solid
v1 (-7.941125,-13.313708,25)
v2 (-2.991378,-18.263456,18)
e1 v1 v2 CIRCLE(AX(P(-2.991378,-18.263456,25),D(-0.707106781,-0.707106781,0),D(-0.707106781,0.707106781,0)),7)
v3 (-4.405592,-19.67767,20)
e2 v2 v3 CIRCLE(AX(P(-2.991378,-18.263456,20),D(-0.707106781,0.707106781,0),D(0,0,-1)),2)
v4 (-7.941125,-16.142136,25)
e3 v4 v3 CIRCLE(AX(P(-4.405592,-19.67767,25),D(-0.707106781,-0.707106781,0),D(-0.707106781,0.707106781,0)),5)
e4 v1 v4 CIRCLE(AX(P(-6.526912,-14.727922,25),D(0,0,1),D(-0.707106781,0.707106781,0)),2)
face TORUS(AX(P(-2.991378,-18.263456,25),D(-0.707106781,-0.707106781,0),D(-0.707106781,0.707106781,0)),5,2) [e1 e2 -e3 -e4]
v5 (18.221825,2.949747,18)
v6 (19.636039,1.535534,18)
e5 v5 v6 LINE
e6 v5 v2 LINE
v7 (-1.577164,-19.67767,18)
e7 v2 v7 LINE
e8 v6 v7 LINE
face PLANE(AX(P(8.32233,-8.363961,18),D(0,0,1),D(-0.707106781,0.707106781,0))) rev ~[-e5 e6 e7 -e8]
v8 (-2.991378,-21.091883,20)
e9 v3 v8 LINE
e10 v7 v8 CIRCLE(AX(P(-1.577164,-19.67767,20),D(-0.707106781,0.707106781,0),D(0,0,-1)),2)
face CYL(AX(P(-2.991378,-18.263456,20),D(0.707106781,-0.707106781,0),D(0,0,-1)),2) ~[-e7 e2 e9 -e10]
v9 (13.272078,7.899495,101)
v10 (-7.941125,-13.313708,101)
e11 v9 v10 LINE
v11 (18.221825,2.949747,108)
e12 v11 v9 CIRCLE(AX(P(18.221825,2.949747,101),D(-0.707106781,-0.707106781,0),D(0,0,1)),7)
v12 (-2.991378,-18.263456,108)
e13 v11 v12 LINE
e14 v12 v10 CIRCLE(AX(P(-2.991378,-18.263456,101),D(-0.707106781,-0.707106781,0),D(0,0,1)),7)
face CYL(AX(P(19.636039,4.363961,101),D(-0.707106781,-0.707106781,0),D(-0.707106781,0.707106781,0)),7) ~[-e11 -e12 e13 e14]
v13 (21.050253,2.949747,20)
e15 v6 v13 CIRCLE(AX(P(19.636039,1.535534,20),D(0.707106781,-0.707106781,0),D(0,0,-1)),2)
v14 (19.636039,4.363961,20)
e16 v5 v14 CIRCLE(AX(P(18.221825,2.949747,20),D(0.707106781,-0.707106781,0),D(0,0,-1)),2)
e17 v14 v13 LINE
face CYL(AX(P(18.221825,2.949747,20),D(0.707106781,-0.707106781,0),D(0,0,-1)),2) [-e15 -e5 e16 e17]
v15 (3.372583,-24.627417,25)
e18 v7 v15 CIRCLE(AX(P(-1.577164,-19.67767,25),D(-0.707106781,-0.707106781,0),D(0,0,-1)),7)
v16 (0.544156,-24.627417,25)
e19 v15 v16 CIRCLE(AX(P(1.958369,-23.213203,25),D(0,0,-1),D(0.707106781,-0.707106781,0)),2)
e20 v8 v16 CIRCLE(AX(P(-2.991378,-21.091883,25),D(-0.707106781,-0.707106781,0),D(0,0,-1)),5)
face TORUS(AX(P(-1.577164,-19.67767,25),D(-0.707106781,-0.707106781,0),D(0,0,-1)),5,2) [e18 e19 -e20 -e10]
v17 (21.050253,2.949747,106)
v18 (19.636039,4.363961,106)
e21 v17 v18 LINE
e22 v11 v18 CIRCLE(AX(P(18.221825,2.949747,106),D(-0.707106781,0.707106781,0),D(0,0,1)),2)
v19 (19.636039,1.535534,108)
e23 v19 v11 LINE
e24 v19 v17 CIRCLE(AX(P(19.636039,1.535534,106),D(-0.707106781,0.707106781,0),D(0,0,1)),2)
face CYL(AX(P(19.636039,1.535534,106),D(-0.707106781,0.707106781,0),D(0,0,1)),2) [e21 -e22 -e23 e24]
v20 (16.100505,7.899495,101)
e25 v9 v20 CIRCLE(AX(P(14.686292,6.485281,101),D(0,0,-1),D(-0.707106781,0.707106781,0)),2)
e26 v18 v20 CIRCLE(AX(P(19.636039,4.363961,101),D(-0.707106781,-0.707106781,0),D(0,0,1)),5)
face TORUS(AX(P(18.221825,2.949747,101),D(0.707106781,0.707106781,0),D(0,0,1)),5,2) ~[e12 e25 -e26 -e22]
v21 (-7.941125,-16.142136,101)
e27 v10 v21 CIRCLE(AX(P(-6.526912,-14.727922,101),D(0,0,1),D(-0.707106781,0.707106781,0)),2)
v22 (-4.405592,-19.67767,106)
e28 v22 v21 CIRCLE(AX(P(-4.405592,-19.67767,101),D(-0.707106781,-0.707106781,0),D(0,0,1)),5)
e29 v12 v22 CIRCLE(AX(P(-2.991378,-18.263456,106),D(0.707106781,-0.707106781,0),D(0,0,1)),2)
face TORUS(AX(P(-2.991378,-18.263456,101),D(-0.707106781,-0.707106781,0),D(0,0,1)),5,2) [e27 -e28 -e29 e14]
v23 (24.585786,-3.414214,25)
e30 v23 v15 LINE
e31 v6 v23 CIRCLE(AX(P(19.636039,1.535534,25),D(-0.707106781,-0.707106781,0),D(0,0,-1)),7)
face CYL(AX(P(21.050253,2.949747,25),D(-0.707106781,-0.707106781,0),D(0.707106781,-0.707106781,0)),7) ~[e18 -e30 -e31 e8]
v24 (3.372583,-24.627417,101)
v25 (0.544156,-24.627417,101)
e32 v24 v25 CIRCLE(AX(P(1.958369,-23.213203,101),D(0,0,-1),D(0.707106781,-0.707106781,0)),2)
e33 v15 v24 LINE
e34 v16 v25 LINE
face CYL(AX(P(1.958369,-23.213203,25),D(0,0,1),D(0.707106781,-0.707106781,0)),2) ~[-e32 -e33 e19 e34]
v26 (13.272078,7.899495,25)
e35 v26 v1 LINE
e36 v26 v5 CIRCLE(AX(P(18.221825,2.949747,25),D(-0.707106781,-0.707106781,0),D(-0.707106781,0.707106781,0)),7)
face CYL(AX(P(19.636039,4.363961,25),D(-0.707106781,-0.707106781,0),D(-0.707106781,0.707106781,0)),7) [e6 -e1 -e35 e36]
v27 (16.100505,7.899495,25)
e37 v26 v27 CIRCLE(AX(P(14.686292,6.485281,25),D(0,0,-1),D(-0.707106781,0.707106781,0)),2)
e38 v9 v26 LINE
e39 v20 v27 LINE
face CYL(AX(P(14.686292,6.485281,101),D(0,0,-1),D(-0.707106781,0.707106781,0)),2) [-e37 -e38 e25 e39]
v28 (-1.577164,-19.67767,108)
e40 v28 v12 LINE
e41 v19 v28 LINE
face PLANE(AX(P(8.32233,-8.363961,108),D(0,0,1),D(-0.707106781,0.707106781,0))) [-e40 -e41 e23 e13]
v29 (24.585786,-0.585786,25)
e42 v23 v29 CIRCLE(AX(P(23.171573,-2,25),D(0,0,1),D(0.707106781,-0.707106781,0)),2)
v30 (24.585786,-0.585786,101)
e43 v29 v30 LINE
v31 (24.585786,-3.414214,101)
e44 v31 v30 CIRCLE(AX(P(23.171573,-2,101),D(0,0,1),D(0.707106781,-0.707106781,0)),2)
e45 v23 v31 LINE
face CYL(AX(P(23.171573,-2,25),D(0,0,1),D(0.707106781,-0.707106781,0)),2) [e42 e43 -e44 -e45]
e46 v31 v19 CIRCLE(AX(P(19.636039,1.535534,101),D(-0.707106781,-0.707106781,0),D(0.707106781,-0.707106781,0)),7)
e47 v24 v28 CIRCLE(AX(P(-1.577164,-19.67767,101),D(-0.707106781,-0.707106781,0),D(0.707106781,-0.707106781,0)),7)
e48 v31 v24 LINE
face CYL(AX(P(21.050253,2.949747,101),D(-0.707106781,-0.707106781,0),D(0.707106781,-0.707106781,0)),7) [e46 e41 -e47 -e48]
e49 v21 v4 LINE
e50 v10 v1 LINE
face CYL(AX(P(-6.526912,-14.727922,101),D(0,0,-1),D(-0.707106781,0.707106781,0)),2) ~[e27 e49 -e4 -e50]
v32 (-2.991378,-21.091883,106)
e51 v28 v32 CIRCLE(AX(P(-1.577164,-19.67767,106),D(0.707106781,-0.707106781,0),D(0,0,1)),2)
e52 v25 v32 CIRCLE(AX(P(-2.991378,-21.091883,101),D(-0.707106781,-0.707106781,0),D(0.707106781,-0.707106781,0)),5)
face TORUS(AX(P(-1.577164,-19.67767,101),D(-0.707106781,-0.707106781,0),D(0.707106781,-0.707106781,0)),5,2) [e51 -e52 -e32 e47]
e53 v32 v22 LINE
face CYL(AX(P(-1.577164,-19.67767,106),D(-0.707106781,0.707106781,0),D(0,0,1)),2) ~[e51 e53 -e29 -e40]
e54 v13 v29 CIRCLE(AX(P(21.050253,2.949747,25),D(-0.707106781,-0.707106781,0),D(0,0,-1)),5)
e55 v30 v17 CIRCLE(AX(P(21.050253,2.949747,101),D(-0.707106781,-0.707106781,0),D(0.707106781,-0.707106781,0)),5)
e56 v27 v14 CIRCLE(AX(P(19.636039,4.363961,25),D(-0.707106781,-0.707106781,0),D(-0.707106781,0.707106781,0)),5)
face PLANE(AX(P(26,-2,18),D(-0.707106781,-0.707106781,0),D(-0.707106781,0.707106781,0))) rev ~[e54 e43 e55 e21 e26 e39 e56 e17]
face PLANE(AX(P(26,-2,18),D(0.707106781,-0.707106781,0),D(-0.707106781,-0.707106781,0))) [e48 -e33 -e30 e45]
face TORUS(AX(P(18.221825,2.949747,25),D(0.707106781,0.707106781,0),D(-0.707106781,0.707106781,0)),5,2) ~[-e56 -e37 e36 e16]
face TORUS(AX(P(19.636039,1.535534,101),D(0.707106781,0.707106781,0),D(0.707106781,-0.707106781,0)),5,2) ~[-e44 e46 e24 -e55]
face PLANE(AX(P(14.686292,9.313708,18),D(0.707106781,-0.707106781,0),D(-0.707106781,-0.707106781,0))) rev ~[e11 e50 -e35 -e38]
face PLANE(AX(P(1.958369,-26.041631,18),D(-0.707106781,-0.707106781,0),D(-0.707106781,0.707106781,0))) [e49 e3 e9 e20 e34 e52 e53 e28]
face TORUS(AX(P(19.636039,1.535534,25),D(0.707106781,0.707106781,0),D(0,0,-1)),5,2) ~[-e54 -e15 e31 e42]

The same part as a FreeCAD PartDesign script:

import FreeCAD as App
import Part
import Sketcher
from FreeCAD import Vector


def edges_at(feature, points):
    """Names of the edges that pass closest to the given points."""
    edges = feature.Shape.Edges
    near = lambda p: min(range(len(edges)), key=lambda i: edges[i].distToShape(Part.Vertex(*p))[0])
    return sorted({f"Edge{near(p) + 1}" for p in points})


def add_polygon(sketch, points):
    """Adds a closed chain of lines whose ends are joined by coincident constraints."""
    first, n = sketch.GeometryCount, len(points)
    for a, b in zip(points, points[1:] + points[:1]):
        sketch.addGeometry(Part.LineSegment(App.Vector(*a, 0), App.Vector(*b, 0)), False)
    for i in range(n):
        sketch.addConstraint(Sketcher.Constraint("Coincident", first + i, 2, first + (i + 1) % n, 1))

doc = App.newDocument("Part")
body = doc.addObject("PartDesign::Body", "Body")

sketch1 = doc.addObject("Sketcher::SketchObject", "Sketch")
body.addObject(sketch1)
sketch1.AttachmentSupport = (doc.XY_Plane, [""])
sketch1.MapMode = "FlatFace"
add_polygon(sketch1, [(0, 34), (0, 0), (16, 0), (16, 34)])
sketch1.addConstraint([
    Sketcher.Constraint("Vertical", 0),
    Sketcher.Constraint("Horizontal", 1),
    Sketcher.Constraint("Vertical", 2),
    Sketcher.Constraint("Horizontal", 3),
    Sketcher.Constraint("Coincident", 0, 2, -1, 1),
    Sketcher.Constraint("DistanceX", 1, 1, 1, 2, 16.0),
    Sketcher.Constraint("DistanceY", 0, 2, 0, 1, 34.0),
])
pad1 = doc.addObject("PartDesign::Pad", "Pad")
body.addObject(pad1)
pad1.Profile = sketch1
pad1.Length = 90
body2 = doc.addObject("PartDesign::Body", "Body001")
doc.recompute()

body.Placement = App.Placement(Vector(0, 0, 180), App.Rotation(Vector(0, 0, 1), 45))
boolean = doc.addObject("PartDesign::Boolean", "Boolean")
body2.addObject(boolean)
boolean.Type = "Fuse"
boolean.addObjects([body])
doc.recompute()

fillet = doc.addObject("PartDesign::Fillet", "Fillet")
body2.addObject(fillet)
fillet.Base = (boolean, edges_at(boolean, [
    (-12.021, 12.021, 270),
    (-12.021, 12.021, 180),
    (-0.707, 23.335, 270),
    (-0.707, 23.335, 180),
]))
fillet.Radius = 7
body3 = doc.addObject("PartDesign::Body", "Body002")
doc.recompute()

body2.Placement = App.Placement(Vector(-2, -26, -162), App.Rotation(Vector(0, 0, 1), 0))
boolean2 = doc.addObject("PartDesign::Boolean", "Boolean001")
body3.addObject(boolean2)
boolean2.Type = "Fuse"
boolean2.addObjects([body2])
doc.recompute()

fillet2 = doc.addObject("PartDesign::Fillet", "Fillet001")
body3.addObject(fillet2)
fillet2.Base = (boolean2, edges_at(boolean2, [(-2, -26, 63), (-26.042, -1.958, 63)]))
fillet2.Radius = 2
body4 = doc.addObject("PartDesign::Body", "Body003")
doc.recompute()

body3.Placement = App.Placement(Vector(0, 0, 0), App.Rotation(Vector(0, 0, 1), 90))
boolean3 = doc.addObject("PartDesign::Boolean", "Boolean002")
body4.addObject(boolean3)
boolean3.Type = "Fuse"
boolean3.addObjects([body3])

doc.recompute()
